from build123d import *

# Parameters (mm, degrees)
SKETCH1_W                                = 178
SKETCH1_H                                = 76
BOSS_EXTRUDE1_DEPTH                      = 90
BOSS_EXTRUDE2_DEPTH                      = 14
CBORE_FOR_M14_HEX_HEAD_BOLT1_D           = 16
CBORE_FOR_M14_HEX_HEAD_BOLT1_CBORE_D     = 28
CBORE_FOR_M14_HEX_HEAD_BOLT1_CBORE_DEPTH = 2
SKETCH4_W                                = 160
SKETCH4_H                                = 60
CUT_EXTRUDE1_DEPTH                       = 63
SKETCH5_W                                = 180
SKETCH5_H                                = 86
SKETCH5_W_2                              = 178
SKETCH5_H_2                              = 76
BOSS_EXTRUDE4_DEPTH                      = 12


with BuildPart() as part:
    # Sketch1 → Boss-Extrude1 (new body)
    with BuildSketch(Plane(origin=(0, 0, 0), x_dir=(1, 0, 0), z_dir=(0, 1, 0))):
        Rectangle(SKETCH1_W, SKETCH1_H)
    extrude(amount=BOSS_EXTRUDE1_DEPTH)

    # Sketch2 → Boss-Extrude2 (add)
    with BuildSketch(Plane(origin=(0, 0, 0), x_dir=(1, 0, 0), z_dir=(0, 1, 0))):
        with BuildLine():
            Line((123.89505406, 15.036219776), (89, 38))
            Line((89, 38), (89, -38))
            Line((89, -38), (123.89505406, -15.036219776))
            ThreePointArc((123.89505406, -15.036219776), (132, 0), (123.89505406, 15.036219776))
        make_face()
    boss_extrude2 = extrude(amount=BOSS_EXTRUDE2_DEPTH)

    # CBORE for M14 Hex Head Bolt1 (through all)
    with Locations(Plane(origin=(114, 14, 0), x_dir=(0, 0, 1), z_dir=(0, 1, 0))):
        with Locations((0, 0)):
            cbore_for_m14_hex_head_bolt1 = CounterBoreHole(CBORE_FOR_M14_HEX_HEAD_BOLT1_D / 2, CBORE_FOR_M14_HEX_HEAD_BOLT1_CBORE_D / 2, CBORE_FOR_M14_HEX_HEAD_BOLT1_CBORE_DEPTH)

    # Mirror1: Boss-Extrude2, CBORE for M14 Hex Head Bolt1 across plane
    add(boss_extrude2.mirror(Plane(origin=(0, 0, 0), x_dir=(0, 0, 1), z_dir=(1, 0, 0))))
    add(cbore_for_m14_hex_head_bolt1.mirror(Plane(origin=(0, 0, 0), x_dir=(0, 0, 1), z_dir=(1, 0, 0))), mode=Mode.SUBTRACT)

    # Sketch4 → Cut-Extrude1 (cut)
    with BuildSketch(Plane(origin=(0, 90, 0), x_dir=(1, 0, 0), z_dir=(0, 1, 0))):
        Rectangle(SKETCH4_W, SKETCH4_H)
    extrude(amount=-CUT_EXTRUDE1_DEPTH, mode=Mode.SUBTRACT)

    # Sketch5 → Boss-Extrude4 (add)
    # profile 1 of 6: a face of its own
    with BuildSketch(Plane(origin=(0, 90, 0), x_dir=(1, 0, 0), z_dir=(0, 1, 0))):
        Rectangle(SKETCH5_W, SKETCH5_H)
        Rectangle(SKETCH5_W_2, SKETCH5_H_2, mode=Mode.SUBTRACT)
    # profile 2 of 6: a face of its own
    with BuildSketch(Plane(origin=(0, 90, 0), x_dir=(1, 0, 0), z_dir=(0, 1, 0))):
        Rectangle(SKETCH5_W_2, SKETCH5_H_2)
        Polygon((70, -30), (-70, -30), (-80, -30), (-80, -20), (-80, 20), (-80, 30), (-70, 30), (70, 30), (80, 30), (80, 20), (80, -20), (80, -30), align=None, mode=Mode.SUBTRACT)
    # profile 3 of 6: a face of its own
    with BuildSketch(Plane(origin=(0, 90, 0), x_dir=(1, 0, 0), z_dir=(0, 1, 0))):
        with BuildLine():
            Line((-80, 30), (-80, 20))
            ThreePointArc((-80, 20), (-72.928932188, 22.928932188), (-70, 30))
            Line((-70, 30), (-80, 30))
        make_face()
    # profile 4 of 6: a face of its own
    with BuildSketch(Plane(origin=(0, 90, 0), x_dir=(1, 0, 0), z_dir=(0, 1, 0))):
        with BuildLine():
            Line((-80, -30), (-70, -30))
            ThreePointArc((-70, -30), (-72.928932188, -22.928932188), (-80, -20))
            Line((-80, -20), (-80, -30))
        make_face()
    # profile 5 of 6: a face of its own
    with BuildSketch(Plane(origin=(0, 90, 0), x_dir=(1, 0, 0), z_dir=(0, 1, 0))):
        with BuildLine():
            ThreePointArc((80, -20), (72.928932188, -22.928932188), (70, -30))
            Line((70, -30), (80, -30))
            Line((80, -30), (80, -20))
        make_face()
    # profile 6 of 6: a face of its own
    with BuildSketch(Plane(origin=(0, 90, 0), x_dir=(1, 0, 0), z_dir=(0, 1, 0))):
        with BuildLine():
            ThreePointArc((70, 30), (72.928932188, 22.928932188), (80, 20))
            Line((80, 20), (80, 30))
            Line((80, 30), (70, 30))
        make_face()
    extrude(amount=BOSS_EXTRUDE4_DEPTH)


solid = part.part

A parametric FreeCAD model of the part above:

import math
import FreeCAD as App
import Part
import Sketcher


def add_polygon(sketch, points):
    """Adds a closed chain of lines whose ends are joined by coincident constraints."""
    first, n = sketch.GeometryCount, len(points)
    for a, b in zip(points, points[1:] + points[:1]):
        sketch.addGeometry(Part.LineSegment(App.Vector(*a, 0), App.Vector(*b, 0)), False)
    for i in range(n):
        sketch.addConstraint(Sketcher.Constraint("Coincident", first + i, 2, first + (i + 1) % n, 1))

doc = App.newDocument("Part")
body = doc.addObject("PartDesign::Body", "Body")

sketch1 = body.newObject("Sketcher::SketchObject", "Sketch")
sketch1.AttachmentSupport = (doc.getObject("XZ_Plane"), [""])
sketch1.MapMode = "FlatFace"
add_polygon(sketch1, [(-89, -38), (-89, 38), (89, 38), (89, -38)])
sketch1.addConstraint([
    Sketcher.Constraint("Vertical", 0),
    Sketcher.Constraint("Horizontal", 1),
    Sketcher.Constraint("Vertical", 2),
    Sketcher.Constraint("Horizontal", 3),
    Sketcher.Constraint("Symmetric", 0, 2, 2, 2, -1, 1),
    Sketcher.Constraint("DistanceX", 1, 1, 1, 2, 178.0),
    Sketcher.Constraint("DistanceY", 0, 1, 0, 2, 76.0),
])
pad1 = body.newObject("PartDesign::Pad", "Pad")
pad1.Profile = sketch1
pad1.Length = 90
pad1.Reversed = True

sketch2 = body.newObject("Sketcher::SketchObject", "Sketch001")
sketch2.AttachmentSupport = (doc.getObject("XZ_Plane"), [""])
sketch2.MapMode = "FlatFace"
sketch2.addGeometry([
    Part.LineSegment(App.Vector(124, -15, 0), App.Vector(89, -38, 0)),
    Part.LineSegment(App.Vector(89, -38, 0), App.Vector(89, 38, 0)),
    Part.LineSegment(App.Vector(89, 38, 0), App.Vector(124, 15, 0)),
    Part.ArcOfCircle(Part.Circle(App.Vector(114, 0, 0), App.Vector(0, 0, 1), 18), math.radians(-57), math.radians(57)),
], False)
sketch2.addConstraint([
    Sketcher.Constraint("Coincident", 0, 2, 1, 1),
    Sketcher.Constraint("Coincident", 1, 2, 2, 1),
    Sketcher.Constraint("Tangent", 2, 2, 3, 2),
    Sketcher.Constraint("Tangent", 3, 1, 0, 1),
    Sketcher.Constraint("Vertical", 1),
    Sketcher.Constraint("Symmetric", 2, 2, 3, 1, -1),
    Sketcher.Constraint("Radius", 3, 18.0),
    Sketcher.Constraint("DistanceY", 1, 1, 1, 2, 76.0),
    Sketcher.Constraint("DistanceX", -1, 1, 3, 3, 114.0),
    Sketcher.Constraint("DistanceX", -1, 1, 0, 2, 89.0),
])
pad2 = body.newObject("PartDesign::Pad", "Pad001")
pad2.Profile = sketch2
pad2.Length = 14
pad2.Reversed = True

sketch3 = body.newObject("Sketcher::SketchObject", "Sketch002")
sketch3.AttachmentSupport = (doc.getObject("XZ_Plane"), [""])
sketch3.MapMode = "FlatFace"
sketch3.AttachmentOffset = App.Placement(App.Vector(0, 0, -14), App.Rotation())
sketch3.addGeometry(Part.Circle(App.Vector(114, 0, 0), App.Vector(0, 0, 1), 8), False)
sketch3.addConstraint([
    Sketcher.Constraint("PointOnObject", 0, 3, -1),
    Sketcher.Constraint("Diameter", 0, 16.0),
    Sketcher.Constraint("DistanceX", -1, 1, 0, 3, 114.0),
])
doc.recompute()
hole = body.newObject("PartDesign::Hole", "Hole")
hole.Profile = sketch3
hole.ThreadType = "None"
hole.Diameter = 16
hole.DepthType = "ThroughAll"
hole.HoleCutType = "Counterbore"
hole.HoleCutDiameter = 28
hole.HoleCutDepth = 2
hole.Reversed = True
doc.recompute()

mirrored = body.newObject("PartDesign::Mirrored", "Mirrored")
mirrored.Originals = [pad2, hole]
mirrored.MirrorPlane = (doc.getObject("YZ_Plane"), [""])
body.Tip = mirrored

sketch4 = body.newObject("Sketcher::SketchObject", "Sketch003")
sketch4.AttachmentSupport = (doc.getObject("XZ_Plane"), [""])
sketch4.MapMode = "FlatFace"
sketch4.AttachmentOffset = App.Placement(App.Vector(0, 0, -90), App.Rotation())
add_polygon(sketch4, [(-80, -30), (-80, 30), (80, 30), (80, -30)])
sketch4.addConstraint([
    Sketcher.Constraint("Vertical", 0),
    Sketcher.Constraint("Horizontal", 1),
    Sketcher.Constraint("Vertical", 2),
    Sketcher.Constraint("Horizontal", 3),
    Sketcher.Constraint("Symmetric", 0, 2, 2, 2, -1, 1),
    Sketcher.Constraint("DistanceX", 1, 1, 1, 2, 160.0),
    Sketcher.Constraint("DistanceY", 0, 1, 0, 2, 60.0),
])
pocket1 = body.newObject("PartDesign::Pocket", "Pocket")
pocket1.Profile = sketch4
pocket1.Length = 63
pocket1.Reversed = True

sketch5 = body.newObject("Sketcher::SketchObject", "Sketch004")
sketch5.AttachmentSupport = (doc.getObject("XZ_Plane"), [""])
sketch5.MapMode = "FlatFace"
sketch5.AttachmentOffset = App.Placement(App.Vector(0, 0, -90), App.Rotation())
add_polygon(sketch5, [(-90, -43), (-90, 43), (90, 43), (90, -43)])
sketch5.addGeometry(Part.LineSegment(App.Vector(80, -20, 0), App.Vector(80, 20, 0)), False)
sketch5.addGeometry(Part.ArcOfCircle(Part.Circle(App.Vector(80, 30, 0), App.Vector(0, 0, 1), 10), math.radians(180), math.radians(270)), False)
sketch5.addGeometry(Part.LineSegment(App.Vector(70, 30, 0), App.Vector(-70, 30, 0)), False)
sketch5.addGeometry(Part.ArcOfCircle(Part.Circle(App.Vector(-80, 30, 0), App.Vector(0, 0, 1), 10), math.radians(-90), math.radians(0)), False)
sketch5.addGeometry(Part.LineSegment(App.Vector(-80, 20, 0), App.Vector(-80, -20, 0)), False)
sketch5.addGeometry(Part.ArcOfCircle(Part.Circle(App.Vector(-80, -30, 0), App.Vector(0, 0, 1), 10), math.radians(0), math.radians(90)), False)
sketch5.addGeometry(Part.LineSegment(App.Vector(-70, -30, 0), App.Vector(70, -30, 0)), False)
sketch5.addGeometry(Part.ArcOfCircle(Part.Circle(App.Vector(80, -30, 0), App.Vector(0, 0, 1), 10), math.radians(90), math.radians(180)), False)
sketch5.addConstraint([
    Sketcher.Constraint("Coincident", 4, 2, 5, 2),
    Sketcher.Constraint("Coincident", 5, 1, 6, 1),
    Sketcher.Constraint("Coincident", 6, 2, 7, 2),
    Sketcher.Constraint("Coincident", 7, 1, 8, 1),
    Sketcher.Constraint("Coincident", 8, 2, 9, 2),
    Sketcher.Constraint("Coincident", 9, 1, 10, 1),
    Sketcher.Constraint("Coincident", 10, 2, 11, 2),
    Sketcher.Constraint("Coincident", 11, 1, 4, 1),
    Sketcher.Constraint("Vertical", 0),
    Sketcher.Constraint("Horizontal", 1),
    Sketcher.Constraint("Vertical", 2),
    Sketcher.Constraint("Horizontal", 3),
    Sketcher.Constraint("Vertical", 4),
    Sketcher.Constraint("Horizontal", 6),
    Sketcher.Constraint("Vertical", 8),
    Sketcher.Constraint("Horizontal", 10),
    Sketcher.Constraint("Equal", 5, 7),
    Sketcher.Constraint("Equal", 7, 9),
    Sketcher.Constraint("Equal", 9, 11),
    Sketcher.Constraint("Symmetric", 5, 3, 9, 3, -1, 1),
    Sketcher.Constraint("Symmetric", 7, 3, 11, 3, -1, 1),
    Sketcher.Constraint("Symmetric", 0, 2, 2, 2, -1, 1),
    Sketcher.Constraint("Symmetric", 5, 3, 7, 3, -2),
    Sketcher.Constraint("Horizontal", 7, 3, 5, 1),
    Sketcher.Constraint("Horizontal", 11, 3, 9, 1),
    Sketcher.Constraint("Vertical", 11, 3, 4, 2),
    Sketcher.Constraint("Vertical", 9, 3, 7, 1),
    Sketcher.Constraint("Radius", 5, 10.0),
    Sketcher.Constraint("DistanceX", 1, 1, 1, 2, 180.0),
    Sketcher.Constraint("DistanceX", 6, 2, 6, 1, 140.0),
    Sketcher.Constraint("DistanceY", 0, 1, 0, 2, 86.0),
    Sketcher.Constraint("DistanceY", 4, 1, 4, 2, 40.0),
])
pad3 = body.newObject("PartDesign::Pad", "Pad002")
pad3.Profile = sketch5
pad3.Length = 12
pad3.Reversed = True

doc.recompute()
